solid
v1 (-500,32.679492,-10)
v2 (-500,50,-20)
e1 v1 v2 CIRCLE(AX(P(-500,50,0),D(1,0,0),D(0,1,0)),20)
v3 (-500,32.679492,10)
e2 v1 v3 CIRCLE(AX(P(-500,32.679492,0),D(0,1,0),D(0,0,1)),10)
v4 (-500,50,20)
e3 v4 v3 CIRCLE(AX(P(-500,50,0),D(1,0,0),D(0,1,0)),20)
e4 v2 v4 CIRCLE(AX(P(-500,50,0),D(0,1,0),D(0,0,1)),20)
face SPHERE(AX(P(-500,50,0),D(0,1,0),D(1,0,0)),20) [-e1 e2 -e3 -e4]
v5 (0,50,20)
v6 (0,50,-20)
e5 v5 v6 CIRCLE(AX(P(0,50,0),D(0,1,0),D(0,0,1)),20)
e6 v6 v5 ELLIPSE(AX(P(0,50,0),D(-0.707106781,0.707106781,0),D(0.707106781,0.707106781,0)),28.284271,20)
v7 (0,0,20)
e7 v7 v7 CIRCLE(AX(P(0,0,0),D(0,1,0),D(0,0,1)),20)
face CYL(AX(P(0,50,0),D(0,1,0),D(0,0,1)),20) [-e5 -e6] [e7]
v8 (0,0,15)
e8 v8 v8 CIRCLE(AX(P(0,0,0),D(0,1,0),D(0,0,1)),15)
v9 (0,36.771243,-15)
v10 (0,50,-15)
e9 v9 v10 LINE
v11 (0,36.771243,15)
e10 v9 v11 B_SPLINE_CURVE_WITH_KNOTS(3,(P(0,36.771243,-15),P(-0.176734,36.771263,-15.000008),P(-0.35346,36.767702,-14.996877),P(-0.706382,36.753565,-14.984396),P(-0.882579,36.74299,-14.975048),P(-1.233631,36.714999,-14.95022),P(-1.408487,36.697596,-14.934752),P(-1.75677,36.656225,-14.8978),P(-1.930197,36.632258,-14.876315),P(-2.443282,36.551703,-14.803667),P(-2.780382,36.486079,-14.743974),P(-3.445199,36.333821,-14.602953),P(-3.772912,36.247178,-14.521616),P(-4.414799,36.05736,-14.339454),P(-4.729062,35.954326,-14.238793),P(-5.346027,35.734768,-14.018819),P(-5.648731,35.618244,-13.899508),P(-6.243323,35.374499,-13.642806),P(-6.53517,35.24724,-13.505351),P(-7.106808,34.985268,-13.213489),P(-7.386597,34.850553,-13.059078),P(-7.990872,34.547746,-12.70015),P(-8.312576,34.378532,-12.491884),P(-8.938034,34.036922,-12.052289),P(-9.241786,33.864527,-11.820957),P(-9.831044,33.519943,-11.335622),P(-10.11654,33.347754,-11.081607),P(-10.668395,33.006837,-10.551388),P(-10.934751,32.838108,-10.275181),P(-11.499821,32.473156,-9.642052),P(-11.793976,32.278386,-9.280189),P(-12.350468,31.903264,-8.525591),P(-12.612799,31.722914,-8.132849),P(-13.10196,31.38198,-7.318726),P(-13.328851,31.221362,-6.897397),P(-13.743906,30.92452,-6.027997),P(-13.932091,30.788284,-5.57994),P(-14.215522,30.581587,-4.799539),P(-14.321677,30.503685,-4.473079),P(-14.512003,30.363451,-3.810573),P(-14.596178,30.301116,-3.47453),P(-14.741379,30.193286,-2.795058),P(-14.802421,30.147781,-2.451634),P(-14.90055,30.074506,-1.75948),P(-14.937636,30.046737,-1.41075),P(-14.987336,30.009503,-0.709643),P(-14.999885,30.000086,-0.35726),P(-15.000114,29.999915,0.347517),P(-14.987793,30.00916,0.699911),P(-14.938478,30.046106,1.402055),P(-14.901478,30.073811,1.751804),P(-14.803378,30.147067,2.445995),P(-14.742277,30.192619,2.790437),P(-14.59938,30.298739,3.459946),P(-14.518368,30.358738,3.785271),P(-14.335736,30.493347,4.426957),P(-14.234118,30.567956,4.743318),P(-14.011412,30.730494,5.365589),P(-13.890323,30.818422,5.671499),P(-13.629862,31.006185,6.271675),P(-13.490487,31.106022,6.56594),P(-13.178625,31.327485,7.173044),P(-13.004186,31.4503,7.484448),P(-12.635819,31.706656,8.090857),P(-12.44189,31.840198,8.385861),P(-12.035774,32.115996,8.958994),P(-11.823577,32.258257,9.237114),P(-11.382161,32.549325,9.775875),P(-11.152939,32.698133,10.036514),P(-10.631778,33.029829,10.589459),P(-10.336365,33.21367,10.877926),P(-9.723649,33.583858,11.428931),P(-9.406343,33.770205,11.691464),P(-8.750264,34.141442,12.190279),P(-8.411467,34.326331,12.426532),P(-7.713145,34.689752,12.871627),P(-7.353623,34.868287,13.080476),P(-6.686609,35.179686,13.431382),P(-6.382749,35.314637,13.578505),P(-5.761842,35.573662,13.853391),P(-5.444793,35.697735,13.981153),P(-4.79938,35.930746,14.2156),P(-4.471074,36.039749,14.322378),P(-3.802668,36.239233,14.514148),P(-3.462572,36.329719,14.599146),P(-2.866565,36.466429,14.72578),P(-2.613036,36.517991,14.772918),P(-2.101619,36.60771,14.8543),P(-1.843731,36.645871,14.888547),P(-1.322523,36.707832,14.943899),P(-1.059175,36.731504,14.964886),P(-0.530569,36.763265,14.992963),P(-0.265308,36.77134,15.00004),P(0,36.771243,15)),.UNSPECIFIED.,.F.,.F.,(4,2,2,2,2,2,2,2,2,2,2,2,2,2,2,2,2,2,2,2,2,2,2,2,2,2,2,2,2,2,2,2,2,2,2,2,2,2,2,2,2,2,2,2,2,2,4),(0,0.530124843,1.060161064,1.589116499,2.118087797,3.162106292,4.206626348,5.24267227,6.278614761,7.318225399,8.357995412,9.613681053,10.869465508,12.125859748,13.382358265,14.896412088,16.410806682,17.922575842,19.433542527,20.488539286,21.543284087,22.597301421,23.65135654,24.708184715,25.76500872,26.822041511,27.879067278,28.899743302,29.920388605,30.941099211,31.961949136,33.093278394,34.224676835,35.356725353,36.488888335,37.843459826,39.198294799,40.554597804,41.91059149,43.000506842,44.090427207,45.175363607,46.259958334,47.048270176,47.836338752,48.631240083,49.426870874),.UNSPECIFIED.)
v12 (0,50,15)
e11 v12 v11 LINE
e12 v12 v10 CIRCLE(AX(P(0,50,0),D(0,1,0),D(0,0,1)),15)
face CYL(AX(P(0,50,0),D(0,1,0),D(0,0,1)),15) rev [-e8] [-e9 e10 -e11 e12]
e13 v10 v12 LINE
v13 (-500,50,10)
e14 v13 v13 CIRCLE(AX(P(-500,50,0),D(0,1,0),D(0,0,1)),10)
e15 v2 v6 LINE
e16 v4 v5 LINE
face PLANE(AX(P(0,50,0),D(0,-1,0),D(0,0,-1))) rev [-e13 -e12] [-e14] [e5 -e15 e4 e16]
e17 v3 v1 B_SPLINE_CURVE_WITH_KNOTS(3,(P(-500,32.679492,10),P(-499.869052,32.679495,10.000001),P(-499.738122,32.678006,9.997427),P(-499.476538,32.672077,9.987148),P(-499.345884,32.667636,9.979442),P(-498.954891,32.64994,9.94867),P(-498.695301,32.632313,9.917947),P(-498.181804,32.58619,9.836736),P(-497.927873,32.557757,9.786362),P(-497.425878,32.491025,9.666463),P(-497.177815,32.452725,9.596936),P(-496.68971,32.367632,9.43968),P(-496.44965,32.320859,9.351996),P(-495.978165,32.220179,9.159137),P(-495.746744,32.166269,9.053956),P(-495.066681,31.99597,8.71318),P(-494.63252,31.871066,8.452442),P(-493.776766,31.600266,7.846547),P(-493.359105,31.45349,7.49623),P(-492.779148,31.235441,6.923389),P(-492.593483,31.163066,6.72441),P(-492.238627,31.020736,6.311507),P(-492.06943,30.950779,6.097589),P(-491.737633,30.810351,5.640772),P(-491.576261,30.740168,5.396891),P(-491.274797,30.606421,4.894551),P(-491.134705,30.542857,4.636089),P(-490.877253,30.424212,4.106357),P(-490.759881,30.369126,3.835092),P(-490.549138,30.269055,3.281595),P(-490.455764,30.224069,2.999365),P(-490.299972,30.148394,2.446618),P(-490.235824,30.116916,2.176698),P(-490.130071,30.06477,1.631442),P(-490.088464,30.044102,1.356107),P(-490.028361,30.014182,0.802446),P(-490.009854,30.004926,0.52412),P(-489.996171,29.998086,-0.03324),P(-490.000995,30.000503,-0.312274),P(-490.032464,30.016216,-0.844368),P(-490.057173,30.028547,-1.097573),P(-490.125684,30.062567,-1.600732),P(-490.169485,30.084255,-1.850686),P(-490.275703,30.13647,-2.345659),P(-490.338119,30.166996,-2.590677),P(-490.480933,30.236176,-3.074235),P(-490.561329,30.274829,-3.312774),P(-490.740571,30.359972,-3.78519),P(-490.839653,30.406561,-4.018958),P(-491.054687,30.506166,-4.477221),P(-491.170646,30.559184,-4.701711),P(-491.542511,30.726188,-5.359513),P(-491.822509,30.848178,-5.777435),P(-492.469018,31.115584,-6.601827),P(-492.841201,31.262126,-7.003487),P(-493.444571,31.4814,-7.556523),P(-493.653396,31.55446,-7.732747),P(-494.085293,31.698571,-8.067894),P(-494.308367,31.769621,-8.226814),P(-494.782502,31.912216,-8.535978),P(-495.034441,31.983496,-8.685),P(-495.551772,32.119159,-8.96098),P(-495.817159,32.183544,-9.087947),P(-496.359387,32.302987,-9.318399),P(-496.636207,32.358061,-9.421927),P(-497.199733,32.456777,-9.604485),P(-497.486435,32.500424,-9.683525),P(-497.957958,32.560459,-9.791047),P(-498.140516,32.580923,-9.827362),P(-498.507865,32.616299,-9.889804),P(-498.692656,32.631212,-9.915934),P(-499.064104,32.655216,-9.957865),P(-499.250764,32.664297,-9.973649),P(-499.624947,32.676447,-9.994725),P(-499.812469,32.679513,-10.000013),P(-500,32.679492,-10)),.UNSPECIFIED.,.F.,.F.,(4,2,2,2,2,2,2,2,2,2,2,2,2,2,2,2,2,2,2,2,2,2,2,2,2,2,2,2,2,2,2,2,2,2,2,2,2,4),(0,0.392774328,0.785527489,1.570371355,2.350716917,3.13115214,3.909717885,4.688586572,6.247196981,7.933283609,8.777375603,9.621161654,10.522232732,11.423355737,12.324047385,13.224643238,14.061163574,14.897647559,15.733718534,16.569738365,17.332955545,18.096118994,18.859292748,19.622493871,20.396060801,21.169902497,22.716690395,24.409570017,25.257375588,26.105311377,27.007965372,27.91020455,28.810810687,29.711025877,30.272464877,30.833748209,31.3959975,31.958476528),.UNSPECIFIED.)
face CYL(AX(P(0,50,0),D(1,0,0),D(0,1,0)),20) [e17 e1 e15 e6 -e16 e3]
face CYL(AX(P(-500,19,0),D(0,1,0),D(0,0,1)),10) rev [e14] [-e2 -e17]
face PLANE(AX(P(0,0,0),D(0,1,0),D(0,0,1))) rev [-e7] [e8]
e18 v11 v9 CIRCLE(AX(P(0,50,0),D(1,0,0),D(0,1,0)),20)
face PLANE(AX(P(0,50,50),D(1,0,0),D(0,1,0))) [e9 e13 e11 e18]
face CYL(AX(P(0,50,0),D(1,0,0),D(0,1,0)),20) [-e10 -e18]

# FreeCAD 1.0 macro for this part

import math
import FreeCAD as App
import Part
import Sketcher
Q = App.Units.Quantity

doc = App.newDocument("Part")
body = doc.addObject("PartDesign::Body", "Body")

sketch1 = doc.addObject("Sketcher::SketchObject", "Sketch")
body.addObject(sketch1)
sketch1.AttachmentSupport = (doc.XY_Plane, [""])
sketch1.MapMode = "FlatFace"
sketch1.addGeometry([
    Part.LineSegment(App.Vector(15, 0, 0), App.Vector(20, 0, 0)),
    Part.LineSegment(App.Vector(20, 0, 0), App.Vector(20, 50, 0)),
    Part.LineSegment(App.Vector(20, 50, 0), App.Vector(15, 50, 0)),
    Part.LineSegment(App.Vector(15, 50, 0), App.Vector(15, 0, 0)),
], False)
sketch1.addConstraint([
    Sketcher.Constraint("Coincident", 0, 2, 1, 1),
    Sketcher.Constraint("Coincident", 1, 2, 2, 1),
    Sketcher.Constraint("Coincident", 2, 2, 3, 1),
    Sketcher.Constraint("Coincident", 3, 2, 0, 1),
    Sketcher.Constraint("Horizontal", 0),
    Sketcher.Constraint("Vertical", 1),
    Sketcher.Constraint("Horizontal", 2),
    Sketcher.Constraint("Vertical", 3),
    Sketcher.Constraint("PointOnObject", 0, 2, -1),
    Sketcher.Constraint("DistanceX", 0, 1, 0, 2, Q("5 mm")),
    Sketcher.Constraint("DistanceY", 1, 1, 1, 2, Q("50 mm")),
    Sketcher.Constraint("DistanceX", -1, 1, 0, 2, Q("20 mm")),
])
revolution = doc.addObject("PartDesign::Revolution", "Revolution")
body.addObject(revolution)
revolution.Profile = sketch1
revolution.ReferenceAxis = (sketch1, ["V_Axis"])
revolution.Angle = 360

sketch2 = doc.addObject("Sketcher::SketchObject", "Sketch001")
body.addObject(sketch2)
sketch2.AttachmentSupport = (doc.XY_Plane, [""])
sketch2.MapMode = "FlatFace"
sketch2.addGeometry([
    Part.LineSegment(App.Vector(0, 30, 0), App.Vector(0, 50, 0)),
    Part.LineSegment(App.Vector(0, 50, 0), App.Vector(-480, 50, 0)),
    Part.ArcOfCircle(Part.Circle(App.Vector(-500, 50, 0), App.Vector(0, 0, 1), 20), math.radians(-90), math.radians(0)),
    Part.LineSegment(App.Vector(-500, 30, 0), App.Vector(0, 30, 0)),
], False)
sketch2.addGeometry(Part.LineSegment(App.Vector(0, 50, 0), App.Vector(-500, 50, 0)), True)
sketch2.addConstraint([
    Sketcher.Constraint("Coincident", 0, 2, 1, 1),
    Sketcher.Constraint("Coincident", 1, 2, 2, 2),
    Sketcher.Constraint("Tangent", 2, 1, 3, 1),
    Sketcher.Constraint("Coincident", 3, 2, 0, 1),
    Sketcher.Constraint("Vertical", 0),
    Sketcher.Constraint("Horizontal", 1),
    Sketcher.Constraint("Horizontal", 3),
    Sketcher.Constraint("Horizontal", 4),
    Sketcher.Constraint("Coincident", 4, 1, 0, 2),
    Sketcher.Constraint("Coincident", 4, 2, 2, 3),
    Sketcher.Constraint("PointOnObject", 0, 2, -2),
    Sketcher.Constraint("Radius", 2, Q("20 mm")),
    Sketcher.Constraint("DistanceX", 1, 2, 1, 1, Q("480 mm")),
    Sketcher.Constraint("DistanceY", -1, 1, 2, 3, Q("50 mm")),
])
revolution2 = doc.addObject("PartDesign::Revolution", "Revolution001")
body.addObject(revolution2)
revolution2.Profile = sketch2
revolution2.ReferenceAxis = (sketch2, ["Axis0"])
revolution2.Angle = 90

sketch3 = doc.addObject("Sketcher::SketchObject", "Sketch002")
body.addObject(sketch3)
sketch3.AttachmentSupport = (doc.XY_Plane, [""])
sketch3.MapMode = "FlatFace"
sketch3.addGeometry([
    Part.LineSegment(App.Vector(0, 30, 0), App.Vector(0, 50, 0)),
    Part.LineSegment(App.Vector(0, 50, 0), App.Vector(-480, 50, 0)),
    Part.ArcOfCircle(Part.Circle(App.Vector(-500, 50, 0), App.Vector(0, 0, 1), 20), math.radians(-90), math.radians(0)),
    Part.LineSegment(App.Vector(-500, 30, 0), App.Vector(0, 30, 0)),
], False)
sketch3.addGeometry(Part.LineSegment(App.Vector(-500, 50, 0), App.Vector(0, 50, 0)), True)
sketch3.addConstraint([
    Sketcher.Constraint("Coincident", 0, 2, 1, 1),
    Sketcher.Constraint("Coincident", 1, 2, 2, 2),
    Sketcher.Constraint("Tangent", 2, 1, 3, 1),
    Sketcher.Constraint("Coincident", 3, 2, 0, 1),
    Sketcher.Constraint("Vertical", 0),
    Sketcher.Constraint("Horizontal", 1),
    Sketcher.Constraint("Horizontal", 3),
    Sketcher.Constraint("Horizontal", 4),
    Sketcher.Constraint("Coincident", 4, 1, 2, 3),
    Sketcher.Constraint("Coincident", 4, 2, 0, 2),
    Sketcher.Constraint("PointOnObject", 0, 2, -2),
    Sketcher.Constraint("Radius", 2, Q("20 mm")),
    Sketcher.Constraint("DistanceX", 1, 2, 1, 1, Q("480 mm")),
    Sketcher.Constraint("DistanceY", -1, 1, 2, 3, Q("50 mm")),
])
revolution3 = doc.addObject("PartDesign::Revolution", "Revolution002")
body.addObject(revolution3)
revolution3.Profile = sketch3
revolution3.ReferenceAxis = (sketch3, ["Axis0"])
revolution3.Angle = 90

sketch4 = doc.addObject("Sketcher::SketchObject", "Sketch003")
body.addObject(sketch4)
sketch4.AttachmentSupport = (doc.XY_Plane, [""])
sketch4.MapMode = "FlatFace"
sketch4.addGeometry([
    Part.LineSegment(App.Vector(-500, 50, 0), App.Vector(-500, 30, 0)),
    Part.ArcOfCircle(Part.Circle(App.Vector(-500, 50, 0), App.Vector(0, 0, 1), 20), math.radians(-90), math.radians(0)),
    Part.LineSegment(App.Vector(-480, 50, 0), App.Vector(-500, 50, 0)),
], False)
sketch4.addGeometry(Part.LineSegment(App.Vector(-500, 50, 0), App.Vector(-500, 30, 0)), True)
sketch4.addConstraint([
    Sketcher.Constraint("Coincident", 0, 2, 1, 1),
    Sketcher.Constraint("Coincident", 1, 2, 2, 1),
    Sketcher.Constraint("Coincident", 2, 2, 0, 1),
    Sketcher.Constraint("Vertical", 0),
    Sketcher.Constraint("Horizontal", 2),
    Sketcher.Constraint("Vertical", 3),
    Sketcher.Constraint("Coincident", 2, 2, 1, 3),
    Sketcher.Constraint("Coincident", 3, 1, 1, 3),
    Sketcher.Constraint("Equal", 0, 3),
    Sketcher.Constraint("Radius", 1, Q("20 mm")),
    Sketcher.Constraint("DistanceX", 1, 3, -1, 1, Q("500 mm")),
    Sketcher.Constraint("DistanceY", -1, 1, 1, 3, Q("50 mm")),
])
revolution4 = doc.addObject("PartDesign::Revolution", "Revolution003")
body.addObject(revolution4)
revolution4.Profile = sketch4
revolution4.ReferenceAxis = (sketch4, ["Axis0"])
revolution4.Angle = 360

sketch5 = doc.addObject("Sketcher::SketchObject", "Sketch004")
body.addObject(sketch5)
sketch5.AttachmentSupport = (doc.XZ_Plane, [""])
sketch5.MapMode = "FlatFace"
sketch5.AttachmentOffset = App.Placement(App.Vector(0, 0, -50), App.Rotation())
sketch5.addGeometry(Part.Circle(App.Vector(-500, 0, 0), App.Vector(0, 0, 1), 10), False)
sketch5.addConstraint([
    Sketcher.Constraint("PointOnObject", 0, 3, -1),
    Sketcher.Constraint("Diameter", 0, Q("20 mm")),
    Sketcher.Constraint("DistanceX", 0, 3, -1, 1, Q("500 mm")),
])
pocket1 = doc.addObject("PartDesign::Pocket", "Pocket")
body.addObject(pocket1)
pocket1.Profile = sketch5
pocket1.Length = 31
pocket1.Reversed = True

doc.recompute()
